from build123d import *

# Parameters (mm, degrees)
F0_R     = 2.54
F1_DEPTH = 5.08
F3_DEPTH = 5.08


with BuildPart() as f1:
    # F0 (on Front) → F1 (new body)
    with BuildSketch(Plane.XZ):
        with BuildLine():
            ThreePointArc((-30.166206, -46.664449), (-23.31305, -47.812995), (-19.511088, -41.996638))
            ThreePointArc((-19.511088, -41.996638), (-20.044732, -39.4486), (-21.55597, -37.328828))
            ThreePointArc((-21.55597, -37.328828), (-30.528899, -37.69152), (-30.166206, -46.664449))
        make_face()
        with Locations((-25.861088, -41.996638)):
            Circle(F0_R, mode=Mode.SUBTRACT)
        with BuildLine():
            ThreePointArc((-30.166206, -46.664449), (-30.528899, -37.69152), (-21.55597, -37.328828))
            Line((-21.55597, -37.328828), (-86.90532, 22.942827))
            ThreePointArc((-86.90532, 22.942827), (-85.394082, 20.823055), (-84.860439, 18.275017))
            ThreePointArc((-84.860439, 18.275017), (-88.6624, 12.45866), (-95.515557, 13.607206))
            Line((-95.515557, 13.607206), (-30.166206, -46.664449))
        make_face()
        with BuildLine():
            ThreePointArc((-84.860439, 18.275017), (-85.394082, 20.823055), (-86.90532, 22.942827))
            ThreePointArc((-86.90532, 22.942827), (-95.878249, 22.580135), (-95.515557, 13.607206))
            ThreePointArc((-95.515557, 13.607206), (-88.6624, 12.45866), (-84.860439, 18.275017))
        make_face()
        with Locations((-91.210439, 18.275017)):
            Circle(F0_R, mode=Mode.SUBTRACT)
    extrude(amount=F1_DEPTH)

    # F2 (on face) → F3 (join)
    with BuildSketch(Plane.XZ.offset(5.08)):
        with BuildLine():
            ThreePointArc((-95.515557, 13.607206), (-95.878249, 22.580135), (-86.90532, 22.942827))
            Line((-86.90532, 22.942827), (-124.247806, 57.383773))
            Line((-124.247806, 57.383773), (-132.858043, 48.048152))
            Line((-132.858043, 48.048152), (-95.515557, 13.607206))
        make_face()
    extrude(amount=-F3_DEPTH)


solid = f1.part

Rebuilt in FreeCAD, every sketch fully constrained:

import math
import FreeCAD as App
import Part
import Sketcher

V = App.Vector
Q = App.Units.Quantity

doc = App.newDocument("Part")
body = doc.addObject("PartDesign::Body", "Body")

sketch1 = body.newObject("Sketcher::SketchObject", "Sketch")
sketch1.AttachmentSupport = (doc.getObject("XZ_Plane"), [""])
sketch1.MapMode = "FlatFace"
sketch1.addGeometry(Part.ArcOfCircle(Part.Circle(V(-25.861088, -41.996639, 0), V(0, 0, 1), 6.35), math.radians(-132.685325), math.radians(0.000007)), False)
sketch1.addGeometry(Part.ArcOfCircle(Part.Circle(V(-25.861088, -41.996639, 0), V(0, 0, 1), 6.35), math.radians(0.00001), math.radians(47.31468)), False)
sketch1.addGeometry(Part.LineSegment(V(-21.55597, -37.328828, 0), V(-86.90532, 22.942827, 0)), False)
sketch1.addGeometry(Part.ArcOfCircle(Part.Circle(V(-91.210438, 18.275016, 0), V(0, 0, 1), 6.35), math.radians(47.314675), math.radians(227.314675)), False)
sketch1.addGeometry(Part.LineSegment(V(-95.515557, 13.607206, 0), V(-30.166206, -46.664449, 0)), False)
sketch1.addGeometry(Part.Circle(V(-25.861088, -41.996638, 0), V(0, 0, 1), 2.54), False)
sketch1.addGeometry(Part.Circle(V(-91.210439, 18.275017, 0), V(0, 0, 1), 2.54), False)
sketch1.addConstraint(Sketcher.Constraint("Tangent", 0, 2, 1, 1))
sketch1.addConstraint(Sketcher.Constraint("Tangent", 1, 2, 2, 1))
sketch1.addConstraint(Sketcher.Constraint("Tangent", 2, 2, 3, 1))
sketch1.addConstraint(Sketcher.Constraint("Tangent", 3, 2, 4, 1))
sketch1.addConstraint(Sketcher.Constraint("Tangent", 4, 2, 0, 1))
sketch1.addConstraint(Sketcher.Constraint("Coincident", 5, 3, 0, 3))
sketch1.addConstraint(Sketcher.Constraint("Coincident", 6, 3, 3, 3))
sketch1.addConstraint(Sketcher.Constraint("Equal", 0, 1))
sketch1.addConstraint(Sketcher.Constraint("Equal", 1, 3))
sketch1.addConstraint(Sketcher.Constraint("Equal", 5, 6))
sketch1.addConstraint(Sketcher.Constraint("Horizontal", 5, 3, 0, 2))
sketch1.addConstraint(Sketcher.Constraint("Diameter", 5, Q("0.2 in")))
sketch1.addConstraint(Sketcher.Constraint("Radius", 0, Q("0.25 in")))
sketch1.addConstraint(Sketcher.Constraint("Distance", 2, Q("3.5 in")))
sketch1.addConstraint(Sketcher.Constraint("DistanceY", 1, 3, 3, 3, Q("2.3728998 in")))
sketch1.addConstraint(Sketcher.Constraint("DistanceY", 0, 3, -1, 1, 41.996639))
sketch1.addConstraint(Sketcher.Constraint("DistanceX", 1, 3, -1, 1, 25.861088))
pad1 = body.newObject("PartDesign::Pad", "Pad")
pad1.Profile = sketch1
pad1.Length = Q("0.2 in")

sketch2 = body.newObject("Sketcher::SketchObject", "Sketch001")
sketch2.AttachmentSupport = (doc.getObject("XZ_Plane"), [""])
sketch2.MapMode = "FlatFace"
sketch2.AttachmentOffset = App.Placement(V(0, 0, 0.2 * 25.4), App.Rotation())
sketch2.addGeometry(Part.ArcOfCircle(Part.Circle(V(-91.210438, 18.275016, 0), V(0, 0, 1), 6.35), math.radians(47.314675), math.radians(227.314675)), False)
sketch2.addGeometry(Part.LineSegment(V(-86.90532, 22.942827, 0), V(-124.247806, 57.383773, 0)), False)
sketch2.addGeometry(Part.LineSegment(V(-124.247806, 57.383773, 0), V(-132.858043, 48.048152, 0)), False)
sketch2.addGeometry(Part.LineSegment(V(-132.858043, 48.048152, 0), V(-95.515557, 13.607206, 0)), False)
sketch2.addConstraint(Sketcher.Constraint("Tangent", 0, 1, 1, 1))
sketch2.addConstraint(Sketcher.Constraint("Coincident", 1, 2, 2, 1))
sketch2.addConstraint(Sketcher.Constraint("Coincident", 2, 2, 3, 1))
sketch2.addConstraint(Sketcher.Constraint("Tangent", 3, 2, 0, 2))
sketch2.addConstraint(Sketcher.Constraint("Perpendicular", 1, 2))
sketch2.addConstraint(Sketcher.Constraint("Perpendicular", 2, 3))
sketch2.addConstraint(Sketcher.Constraint("Radius", 0, Q("0.25 in")))
sketch2.addConstraint(Sketcher.Constraint("Distance", 1, Q("2 in")))
sketch2.addConstraint(Sketcher.Constraint("DistanceX", 0, 3, -1, 1, 91.210438))
sketch2.addConstraint(Sketcher.Constraint("DistanceX", 0, 1, -1, 1, 86.90532))
sketch2.addConstraint(Sketcher.Constraint("DistanceY", -1, 1, 0, 3, 18.275016))
pad2 = body.newObject("PartDesign::Pad", "Pad001")
pad2.Profile = sketch2
pad2.Length = Q("0.2 in")
pad2.Reversed = True

doc.recompute()
